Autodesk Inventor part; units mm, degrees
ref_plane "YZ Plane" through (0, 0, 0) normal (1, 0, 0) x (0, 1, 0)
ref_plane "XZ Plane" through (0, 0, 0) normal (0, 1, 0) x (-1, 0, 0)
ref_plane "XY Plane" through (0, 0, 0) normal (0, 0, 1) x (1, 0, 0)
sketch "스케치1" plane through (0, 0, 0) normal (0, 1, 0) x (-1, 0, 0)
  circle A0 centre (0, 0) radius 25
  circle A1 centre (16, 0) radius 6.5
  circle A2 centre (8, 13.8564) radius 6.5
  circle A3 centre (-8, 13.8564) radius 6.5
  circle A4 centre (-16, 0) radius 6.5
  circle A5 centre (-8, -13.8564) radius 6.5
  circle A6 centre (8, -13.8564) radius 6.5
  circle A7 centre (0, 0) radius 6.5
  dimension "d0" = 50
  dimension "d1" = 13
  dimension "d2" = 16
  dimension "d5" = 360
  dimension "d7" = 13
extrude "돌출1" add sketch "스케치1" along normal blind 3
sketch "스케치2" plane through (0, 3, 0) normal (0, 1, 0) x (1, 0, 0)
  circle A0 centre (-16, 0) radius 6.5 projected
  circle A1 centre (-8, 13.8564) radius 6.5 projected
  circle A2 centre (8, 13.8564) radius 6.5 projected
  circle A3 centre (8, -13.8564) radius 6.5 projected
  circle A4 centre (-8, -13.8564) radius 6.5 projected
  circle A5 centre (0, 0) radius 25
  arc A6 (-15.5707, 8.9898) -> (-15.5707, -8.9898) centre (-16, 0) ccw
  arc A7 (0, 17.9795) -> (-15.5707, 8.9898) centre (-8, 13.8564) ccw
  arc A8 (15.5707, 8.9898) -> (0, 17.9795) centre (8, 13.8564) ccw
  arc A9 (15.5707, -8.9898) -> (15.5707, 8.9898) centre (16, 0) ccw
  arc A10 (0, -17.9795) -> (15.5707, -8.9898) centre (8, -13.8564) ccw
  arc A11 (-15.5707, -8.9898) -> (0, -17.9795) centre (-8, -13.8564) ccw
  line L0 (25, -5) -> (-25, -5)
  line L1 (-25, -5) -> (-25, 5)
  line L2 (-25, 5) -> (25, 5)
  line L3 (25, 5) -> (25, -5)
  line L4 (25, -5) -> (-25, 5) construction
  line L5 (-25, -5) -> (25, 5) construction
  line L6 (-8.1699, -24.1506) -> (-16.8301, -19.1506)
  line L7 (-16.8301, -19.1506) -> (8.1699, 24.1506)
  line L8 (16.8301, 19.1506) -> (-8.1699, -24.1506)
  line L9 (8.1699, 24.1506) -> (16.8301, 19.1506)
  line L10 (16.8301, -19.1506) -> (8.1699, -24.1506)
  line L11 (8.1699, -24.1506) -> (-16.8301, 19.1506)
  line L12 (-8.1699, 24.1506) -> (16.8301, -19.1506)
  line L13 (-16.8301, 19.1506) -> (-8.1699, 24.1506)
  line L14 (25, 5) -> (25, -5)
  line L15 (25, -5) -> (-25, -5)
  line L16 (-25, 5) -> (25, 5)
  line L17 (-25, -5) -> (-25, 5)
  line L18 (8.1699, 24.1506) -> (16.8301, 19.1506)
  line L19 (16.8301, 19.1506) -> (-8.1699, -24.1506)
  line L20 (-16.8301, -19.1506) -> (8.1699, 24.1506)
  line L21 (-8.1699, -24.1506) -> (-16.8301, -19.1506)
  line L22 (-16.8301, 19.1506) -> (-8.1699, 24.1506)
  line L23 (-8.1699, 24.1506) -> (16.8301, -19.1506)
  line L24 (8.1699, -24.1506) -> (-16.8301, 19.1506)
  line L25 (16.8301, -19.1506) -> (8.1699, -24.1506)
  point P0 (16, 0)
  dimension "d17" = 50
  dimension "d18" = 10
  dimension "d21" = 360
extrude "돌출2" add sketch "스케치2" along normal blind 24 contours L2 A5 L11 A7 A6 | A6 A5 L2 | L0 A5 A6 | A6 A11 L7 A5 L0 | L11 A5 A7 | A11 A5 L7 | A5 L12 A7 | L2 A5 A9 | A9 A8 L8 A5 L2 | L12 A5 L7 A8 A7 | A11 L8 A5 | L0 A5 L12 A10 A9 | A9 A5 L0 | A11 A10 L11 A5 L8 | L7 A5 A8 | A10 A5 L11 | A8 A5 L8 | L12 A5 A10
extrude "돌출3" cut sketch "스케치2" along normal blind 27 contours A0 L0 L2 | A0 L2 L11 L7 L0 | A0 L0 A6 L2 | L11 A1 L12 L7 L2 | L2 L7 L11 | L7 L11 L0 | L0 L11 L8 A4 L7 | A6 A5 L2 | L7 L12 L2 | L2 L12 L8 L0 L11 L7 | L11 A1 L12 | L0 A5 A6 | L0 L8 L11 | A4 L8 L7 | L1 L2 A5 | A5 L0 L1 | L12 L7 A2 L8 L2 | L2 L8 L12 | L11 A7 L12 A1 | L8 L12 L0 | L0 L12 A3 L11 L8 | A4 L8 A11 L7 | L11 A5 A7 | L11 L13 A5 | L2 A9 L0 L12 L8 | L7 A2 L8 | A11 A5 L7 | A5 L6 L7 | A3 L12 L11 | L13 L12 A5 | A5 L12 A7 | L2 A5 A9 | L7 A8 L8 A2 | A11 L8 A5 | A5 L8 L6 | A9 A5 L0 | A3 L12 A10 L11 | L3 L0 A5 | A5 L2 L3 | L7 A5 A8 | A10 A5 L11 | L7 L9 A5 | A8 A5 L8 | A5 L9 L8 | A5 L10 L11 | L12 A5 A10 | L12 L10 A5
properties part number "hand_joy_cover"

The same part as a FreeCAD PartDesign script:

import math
import FreeCAD as App
import Part
import Sketcher

V = App.Vector
Q = App.Units.Quantity


def add_polygon(sketch, points):
    """Adds a closed chain of lines whose ends are joined by coincident constraints."""
    first, n = sketch.GeometryCount, len(points)
    for a, b in zip(points, points[1:] + points[:1]):
        sketch.addGeometry(Part.LineSegment(App.Vector(*a, 0), App.Vector(*b, 0)), False)
    for i in range(n):
        sketch.addConstraint(Sketcher.Constraint("Coincident", first + i, 2, first + (i + 1) % n, 1))

doc = App.newDocument("Part")
params = doc.addObject("Spreadsheet::Sheet", "Params")
for row, (alias, value) in enumerate([
    ("sketch1_diameter", "50 mm"),
    ("sketch1_diameter2", "13 mm"),
    ("pad1_length", "3 mm"),
    ("sketch2_radius", "25 mm"),
    ("sketch2_radius2", "9 mm"),
    ("pad2_length", "24 mm"),
    ("sketch3_height", "10 mm"),
    ("sketch3_length", "10 mm"),
    ("pocket1_length", "27 mm"),
], start=1):
    params.set(f"A{row}", alias)
    params.set(f"B{row}", "=" + value)
    params.setAlias(f"B{row}", alias)

body = doc.addObject("PartDesign::Body", "Body")

# Sketch on XZ plane
sketch1 = doc.addObject("Sketcher::SketchObject", "Sketch")
body.addObject(sketch1)
sketch1.AttachmentSupport = (doc.XZ_Plane, [""])
sketch1.MapMode = "FlatFace"
sketch1.addGeometry(Part.Circle(V(0, 0, 0), V(0, 0, 1), 25), False)
sketch1.addGeometry(Part.Circle(V(8, -13.8564, 0), V(0, 0, 1), 6.5), False)
sketch1.addGeometry(Part.Circle(V(-8, -13.8564, 0), V(0, 0, 1), 6.5), False)
sketch1.addGeometry(Part.Circle(V(16, 0, 0), V(0, 0, 1), 6.5), False)
sketch1.addGeometry(Part.Circle(V(8, 13.8564, 0), V(0, 0, 1), 6.5), False)
sketch1.addGeometry(Part.Circle(V(0, 0, 0), V(0, 0, 1), 6.5), False)
sketch1.addGeometry(Part.Circle(V(-16, 0, 0), V(0, 0, 1), 6.5), False)
sketch1.addGeometry(Part.Circle(V(-8, 13.8564, 0), V(0, 0, 1), 6.5), False)
sketch1.addConstraint(Sketcher.Constraint("Coincident", 0, 3, -1, 1))
sketch1.addConstraint(Sketcher.Constraint("Coincident", 5, 3, -1, 1))
sketch1.addConstraint(Sketcher.Constraint("Equal", 1, 2))
sketch1.addConstraint(Sketcher.Constraint("Equal", 2, 3))
sketch1.addConstraint(Sketcher.Constraint("Equal", 3, 4))
sketch1.addConstraint(Sketcher.Constraint("Equal", 4, 5))
sketch1.addConstraint(Sketcher.Constraint("Equal", 5, 6))
sketch1.addConstraint(Sketcher.Constraint("Equal", 6, 7))
sketch1.addConstraint(Sketcher.Constraint("Symmetric", 2, 3, 4, 3, -1, 1))
sketch1.addConstraint(Sketcher.Constraint("Symmetric", 3, 3, 6, 3, -1, 1))
sketch1.addConstraint(Sketcher.Constraint("Symmetric", 1, 3, 7, 3, -1, 1))
sketch1.addConstraint(Sketcher.Constraint("Symmetric", 1, 3, 2, 3, -2))
sketch1.addConstraint(Sketcher.Constraint("PointOnObject", 3, 3, -1))
sketch1.addConstraint(Sketcher.Constraint("Diameter", 0, Q("50 mm")))
sketch1.addConstraint(Sketcher.Constraint("Diameter", 1, Q("13 mm")))
sketch1.addConstraint(Sketcher.Constraint("DistanceX", -1, 1, 3, 3, Q("16 mm")))
sketch1.addConstraint(Sketcher.Constraint("DistanceX", 2, 3, 1, 3, Q("16 mm")))
sketch1.addConstraint(Sketcher.Constraint("DistanceY", 1, 3, -1, 1, Q("13.8564 mm")))
sketch1.setExpression("Constraints[13]", "Params.sketch1_diameter")
sketch1.setExpression("Constraints[14]", "Params.sketch1_diameter2")
pad1 = doc.addObject("PartDesign::Pad", "Pad")
body.addObject(pad1)
pad1.Profile = sketch1
pad1.setExpression("Length", "Params.pad1_length")
pad1.Reversed = True

# Sketch on XZ plane
sketch2 = doc.addObject("Sketcher::SketchObject", "Sketch001")
body.addObject(sketch2)
sketch2.AttachmentSupport = (doc.XZ_Plane, [""])
sketch2.MapMode = "FlatFace"
sketch2.AttachmentOffset = App.Placement(V(0, 0, -3), App.Rotation())
sketch2.addGeometry(Part.ArcOfCircle(Part.Circle(V(-16, 0, 0), V(0, 0, 1), 9.000045), math.radians(180), math.radians(272.734033)), False)
sketch2.addGeometry(Part.ArcOfCircle(Part.Circle(V(-8, -13.8564, 0), V(0, 0, 1), 8.999997), math.radians(147.266266), math.radians(239.999855)), False)
sketch2.addGeometry(Part.ArcOfCircle(Part.Circle(V(0, 0, 0), V(0, 0, 1), 25), math.radians(180), math.radians(239.99994)), False)
sketch2.addGeometry(Part.ArcOfCircle(Part.Circle(V(0, 0, 0), V(0, 0, 1), 25), math.radians(120.00006), math.radians(180)), False)
sketch2.addGeometry(Part.ArcOfCircle(Part.Circle(V(-8, 13.8564, 0), V(0, 0, 1), 8.999961), math.radians(120.000145), math.radians(212.733734)), False)
sketch2.addGeometry(Part.ArcOfCircle(Part.Circle(V(-16, 0, 0), V(0, 0, 1), 9.000045), math.radians(87.265967), math.radians(180)), False)
sketch2.addGeometry(Part.ArcOfCircle(Part.Circle(V(-8, -13.8564, 0), V(0, 0, 1), 8.999997), math.radians(-120.000145), math.radians(-27.266013)), False)
sketch2.addGeometry(Part.ArcOfCircle(Part.Circle(V(8, -13.8564, 0), V(0, 0, 1), 8.999961), math.radians(-152.733987), math.radians(-59.999855)), False)
sketch2.addGeometry(Part.ArcOfCircle(Part.Circle(V(0, 0, 0), V(0, 0, 1), 25), math.radians(-120.00006), math.radians(-59.99994)), False)
sketch2.addGeometry(Part.ArcOfCircle(Part.Circle(V(0, 0, 0), V(0, 0, 1), 25), math.radians(-59.99994), math.radians(0)), False)
sketch2.addGeometry(Part.ArcOfCircle(Part.Circle(V(8, -13.8564, 0), V(0, 0, 1), 8.999961), math.radians(-59.999855), math.radians(32.733734)), False)
sketch2.addGeometry(Part.ArcOfCircle(Part.Circle(V(16, 0, 0), V(0, 0, 1), 9.000045), math.radians(-92.734033), math.radians(0)), False)
sketch2.addGeometry(Part.ArcOfCircle(Part.Circle(V(0, 0, 0), V(0, 0, 1), 25), math.radians(59.99994), math.radians(120.00006)), False)
sketch2.addGeometry(Part.ArcOfCircle(Part.Circle(V(8, 13.8564, 0), V(0, 0, 1), 8.999997), math.radians(59.999855), math.radians(152.733987)), False)
sketch2.addGeometry(Part.ArcOfCircle(Part.Circle(V(-8, 13.8564, 0), V(0, 0, 1), 8.999961), math.radians(27.266013), math.radians(120.000145)), False)
sketch2.addGeometry(Part.ArcOfCircle(Part.Circle(V(16, 0, 0), V(0, 0, 1), 9.000045), math.radians(0), math.radians(92.734033)), False)
sketch2.addGeometry(Part.ArcOfCircle(Part.Circle(V(8, 13.8564, 0), V(0, 0, 1), 8.999997), math.radians(-32.733734), math.radians(59.999855)), False)
sketch2.addGeometry(Part.ArcOfCircle(Part.Circle(V(0, 0, 0), V(0, 0, 1), 25), math.radians(0), math.radians(59.99994)), False)
sketch2.addConstraint(Sketcher.Constraint("Coincident", 0, 2, 1, 1))
sketch2.addConstraint(Sketcher.Constraint("Tangent", 1, 2, 2, 2))
sketch2.addConstraint(Sketcher.Constraint("Tangent", 2, 1, 0, 1))
sketch2.addConstraint(Sketcher.Constraint("Tangent", 3, 1, 4, 1))
sketch2.addConstraint(Sketcher.Constraint("Coincident", 4, 2, 5, 1))
sketch2.addConstraint(Sketcher.Constraint("Tangent", 5, 2, 3, 2))
sketch2.addConstraint(Sketcher.Constraint("Coincident", 6, 2, 7, 1))
sketch2.addConstraint(Sketcher.Constraint("Tangent", 7, 2, 8, 2))
sketch2.addConstraint(Sketcher.Constraint("Tangent", 8, 1, 6, 1))
sketch2.addConstraint(Sketcher.Constraint("Tangent", 9, 1, 10, 1))
sketch2.addConstraint(Sketcher.Constraint("Coincident", 10, 2, 11, 1))
sketch2.addConstraint(Sketcher.Constraint("Tangent", 11, 2, 9, 2))
sketch2.addConstraint(Sketcher.Constraint("Tangent", 12, 1, 13, 1))
sketch2.addConstraint(Sketcher.Constraint("Coincident", 13, 2, 14, 1))
sketch2.addConstraint(Sketcher.Constraint("Tangent", 14, 2, 12, 2))
sketch2.addConstraint(Sketcher.Constraint("Coincident", 15, 2, 16, 1))
sketch2.addConstraint(Sketcher.Constraint("Tangent", 16, 2, 17, 2))
sketch2.addConstraint(Sketcher.Constraint("Tangent", 17, 1, 15, 1))
sketch2.addConstraint(Sketcher.Constraint("Coincident", 2, 3, -1, 1))
sketch2.addConstraint(Sketcher.Constraint("Coincident", 3, 3, -1, 1))
sketch2.addConstraint(Sketcher.Constraint("Coincident", 8, 3, -1, 1))
sketch2.addConstraint(Sketcher.Constraint("Coincident", 9, 3, -1, 1))
sketch2.addConstraint(Sketcher.Constraint("Coincident", 12, 3, -1, 1))
sketch2.addConstraint(Sketcher.Constraint("Coincident", 17, 3, -1, 1))
sketch2.addConstraint(Sketcher.Constraint("Coincident", 5, 3, 0, 3))
sketch2.addConstraint(Sketcher.Constraint("Coincident", 6, 3, 1, 3))
sketch2.addConstraint(Sketcher.Constraint("Coincident", 10, 3, 7, 3))
sketch2.addConstraint(Sketcher.Constraint("Coincident", 14, 3, 4, 3))
sketch2.addConstraint(Sketcher.Constraint("Coincident", 15, 3, 11, 3))
sketch2.addConstraint(Sketcher.Constraint("Coincident", 16, 3, 13, 3))
sketch2.addConstraint(Sketcher.Constraint("Equal", 0, 1))
sketch2.addConstraint(Sketcher.Constraint("Equal", 2, 3))
sketch2.addConstraint(Sketcher.Constraint("Equal", 1, 4))
sketch2.addConstraint(Sketcher.Constraint("Equal", 5, 6))
sketch2.addConstraint(Sketcher.Constraint("Equal", 6, 7))
sketch2.addConstraint(Sketcher.Constraint("Equal", 8, 9))
sketch2.addConstraint(Sketcher.Constraint("Equal", 10, 11))
sketch2.addConstraint(Sketcher.Constraint("Equal", 9, 12))
sketch2.addConstraint(Sketcher.Constraint("Equal", 11, 13))
sketch2.addConstraint(Sketcher.Constraint("Equal", 14, 15))
sketch2.addConstraint(Sketcher.Constraint("Symmetric", 4, 2, 10, 2, -1, 1))
sketch2.addConstraint(Sketcher.Constraint("Symmetric", 0, 2, 10, 2, -2))
sketch2.addConstraint(Sketcher.Constraint("PointOnObject", 13, 2, -2))
sketch2.addConstraint(Sketcher.Constraint("Radius", 2, Q("25 mm")))
sketch2.addConstraint(Sketcher.Constraint("Radius", 0, Q("9 mm")))
sketch2.addConstraint(Sketcher.Constraint("DistanceX", 1, 3, -1, 1, Q("8 mm")))
sketch2.setExpression("Constraints[43]", "Params.sketch2_radius")
sketch2.setExpression("Constraints[44]", "Params.sketch2_radius2")
pad2 = doc.addObject("PartDesign::Pad", "Pad001")
body.addObject(pad2)
pad2.Profile = sketch2
pad2.setExpression("Length", "Params.pad2_length")
pad2.Reversed = True

# Sketch on XZ plane
sketch3 = doc.addObject("Sketcher::SketchObject", "Sketch002")
body.addObject(sketch3)
sketch3.AttachmentSupport = (doc.XZ_Plane, [""])
sketch3.MapMode = "FlatFace"
sketch3.AttachmentOffset = App.Placement(V(0, 0, -3), App.Rotation())
add_polygon(sketch3, [(-8.660234, 5), (-16.8301, 19.1506), (-8.1699, 24.1506), (0, 9.999941), (8.1699, 24.1506), (16.8301, 19.1506), (8.660234, 5), (25, 5), (25, -5), (8.660234, -5), (16.8301, -19.1506), (8.1699, -24.1506), (0, -9.999941), (-8.1699, -24.1506), (-16.8301, -19.1506), (-8.660234, -5), (-25, -5), (-25, 5)])  # lines 0-17
sketch3.addConstraint(Sketcher.Constraint("Horizontal", 6))
sketch3.addConstraint(Sketcher.Constraint("Vertical", 7))
sketch3.addConstraint(Sketcher.Constraint("Horizontal", 8))
sketch3.addConstraint(Sketcher.Constraint("Horizontal", 15))
sketch3.addConstraint(Sketcher.Constraint("Vertical", 16))
sketch3.addConstraint(Sketcher.Constraint("Horizontal", 17))
sketch3.addConstraint(Sketcher.Constraint("Symmetric", 0, 2, 9, 2, -1, 1))
sketch3.addConstraint(Sketcher.Constraint("Symmetric", 1, 2, 10, 2, -1, 1))
sketch3.addConstraint(Sketcher.Constraint("Symmetric", 2, 2, 11, 2, -1, 1))
sketch3.addConstraint(Sketcher.Constraint("Symmetric", 3, 2, 12, 2, -1, 1))
sketch3.addConstraint(Sketcher.Constraint("Symmetric", 4, 2, 13, 2, -1, 1))
sketch3.addConstraint(Sketcher.Constraint("Symmetric", 5, 2, 14, 2, -1, 1))
sketch3.addConstraint(Sketcher.Constraint("Symmetric", 7, 2, 16, 2, -1, 1))
sketch3.addConstraint(Sketcher.Constraint("Symmetric", 1, 2, 3, 2, -2))
sketch3.addConstraint(Sketcher.Constraint("Symmetric", 0, 2, 4, 2, -2))
sketch3.addConstraint(Sketcher.Constraint("Symmetric", 8, 2, 14, 2, -2))
sketch3.addConstraint(Sketcher.Constraint("PointOnObject", 2, 2, -2))
sketch3.addConstraint(Sketcher.Constraint("Perpendicular", 0, 1))
sketch3.addConstraint(Sketcher.Constraint("Perpendicular", 1, 2))
sketch3.addConstraint(Sketcher.Constraint("Perpendicular", 4, 5))
sketch3.addConstraint(Sketcher.Constraint("Equal", 0, 2))
sketch3.addConstraint(Sketcher.Constraint("DistanceY", 7, 2, 7, 1, Q("10 mm")))
sketch3.addConstraint(Sketcher.Constraint("Distance", 1, Q("10 mm")))
sketch3.addConstraint(Sketcher.Constraint("DistanceY", -1, 1, 2, 2, Q("10 mm")))
sketch3.addConstraint(Sketcher.Constraint("DistanceX", -1, 1, 6, 2, Q("25 mm")))
sketch3.addConstraint(Sketcher.Constraint("DistanceX", 0, 2, 3, 2, Q("25 mm")))
sketch3.setExpression("Constraints[39]", "Params.sketch3_height")
sketch3.setExpression("Constraints[40]", "Params.sketch3_length")
pocket1 = doc.addObject("PartDesign::Pocket", "Pocket")
body.addObject(pocket1)
pocket1.Profile = sketch3
pocket1.setExpression("Length", "Params.pocket1_length")

doc.recompute()
